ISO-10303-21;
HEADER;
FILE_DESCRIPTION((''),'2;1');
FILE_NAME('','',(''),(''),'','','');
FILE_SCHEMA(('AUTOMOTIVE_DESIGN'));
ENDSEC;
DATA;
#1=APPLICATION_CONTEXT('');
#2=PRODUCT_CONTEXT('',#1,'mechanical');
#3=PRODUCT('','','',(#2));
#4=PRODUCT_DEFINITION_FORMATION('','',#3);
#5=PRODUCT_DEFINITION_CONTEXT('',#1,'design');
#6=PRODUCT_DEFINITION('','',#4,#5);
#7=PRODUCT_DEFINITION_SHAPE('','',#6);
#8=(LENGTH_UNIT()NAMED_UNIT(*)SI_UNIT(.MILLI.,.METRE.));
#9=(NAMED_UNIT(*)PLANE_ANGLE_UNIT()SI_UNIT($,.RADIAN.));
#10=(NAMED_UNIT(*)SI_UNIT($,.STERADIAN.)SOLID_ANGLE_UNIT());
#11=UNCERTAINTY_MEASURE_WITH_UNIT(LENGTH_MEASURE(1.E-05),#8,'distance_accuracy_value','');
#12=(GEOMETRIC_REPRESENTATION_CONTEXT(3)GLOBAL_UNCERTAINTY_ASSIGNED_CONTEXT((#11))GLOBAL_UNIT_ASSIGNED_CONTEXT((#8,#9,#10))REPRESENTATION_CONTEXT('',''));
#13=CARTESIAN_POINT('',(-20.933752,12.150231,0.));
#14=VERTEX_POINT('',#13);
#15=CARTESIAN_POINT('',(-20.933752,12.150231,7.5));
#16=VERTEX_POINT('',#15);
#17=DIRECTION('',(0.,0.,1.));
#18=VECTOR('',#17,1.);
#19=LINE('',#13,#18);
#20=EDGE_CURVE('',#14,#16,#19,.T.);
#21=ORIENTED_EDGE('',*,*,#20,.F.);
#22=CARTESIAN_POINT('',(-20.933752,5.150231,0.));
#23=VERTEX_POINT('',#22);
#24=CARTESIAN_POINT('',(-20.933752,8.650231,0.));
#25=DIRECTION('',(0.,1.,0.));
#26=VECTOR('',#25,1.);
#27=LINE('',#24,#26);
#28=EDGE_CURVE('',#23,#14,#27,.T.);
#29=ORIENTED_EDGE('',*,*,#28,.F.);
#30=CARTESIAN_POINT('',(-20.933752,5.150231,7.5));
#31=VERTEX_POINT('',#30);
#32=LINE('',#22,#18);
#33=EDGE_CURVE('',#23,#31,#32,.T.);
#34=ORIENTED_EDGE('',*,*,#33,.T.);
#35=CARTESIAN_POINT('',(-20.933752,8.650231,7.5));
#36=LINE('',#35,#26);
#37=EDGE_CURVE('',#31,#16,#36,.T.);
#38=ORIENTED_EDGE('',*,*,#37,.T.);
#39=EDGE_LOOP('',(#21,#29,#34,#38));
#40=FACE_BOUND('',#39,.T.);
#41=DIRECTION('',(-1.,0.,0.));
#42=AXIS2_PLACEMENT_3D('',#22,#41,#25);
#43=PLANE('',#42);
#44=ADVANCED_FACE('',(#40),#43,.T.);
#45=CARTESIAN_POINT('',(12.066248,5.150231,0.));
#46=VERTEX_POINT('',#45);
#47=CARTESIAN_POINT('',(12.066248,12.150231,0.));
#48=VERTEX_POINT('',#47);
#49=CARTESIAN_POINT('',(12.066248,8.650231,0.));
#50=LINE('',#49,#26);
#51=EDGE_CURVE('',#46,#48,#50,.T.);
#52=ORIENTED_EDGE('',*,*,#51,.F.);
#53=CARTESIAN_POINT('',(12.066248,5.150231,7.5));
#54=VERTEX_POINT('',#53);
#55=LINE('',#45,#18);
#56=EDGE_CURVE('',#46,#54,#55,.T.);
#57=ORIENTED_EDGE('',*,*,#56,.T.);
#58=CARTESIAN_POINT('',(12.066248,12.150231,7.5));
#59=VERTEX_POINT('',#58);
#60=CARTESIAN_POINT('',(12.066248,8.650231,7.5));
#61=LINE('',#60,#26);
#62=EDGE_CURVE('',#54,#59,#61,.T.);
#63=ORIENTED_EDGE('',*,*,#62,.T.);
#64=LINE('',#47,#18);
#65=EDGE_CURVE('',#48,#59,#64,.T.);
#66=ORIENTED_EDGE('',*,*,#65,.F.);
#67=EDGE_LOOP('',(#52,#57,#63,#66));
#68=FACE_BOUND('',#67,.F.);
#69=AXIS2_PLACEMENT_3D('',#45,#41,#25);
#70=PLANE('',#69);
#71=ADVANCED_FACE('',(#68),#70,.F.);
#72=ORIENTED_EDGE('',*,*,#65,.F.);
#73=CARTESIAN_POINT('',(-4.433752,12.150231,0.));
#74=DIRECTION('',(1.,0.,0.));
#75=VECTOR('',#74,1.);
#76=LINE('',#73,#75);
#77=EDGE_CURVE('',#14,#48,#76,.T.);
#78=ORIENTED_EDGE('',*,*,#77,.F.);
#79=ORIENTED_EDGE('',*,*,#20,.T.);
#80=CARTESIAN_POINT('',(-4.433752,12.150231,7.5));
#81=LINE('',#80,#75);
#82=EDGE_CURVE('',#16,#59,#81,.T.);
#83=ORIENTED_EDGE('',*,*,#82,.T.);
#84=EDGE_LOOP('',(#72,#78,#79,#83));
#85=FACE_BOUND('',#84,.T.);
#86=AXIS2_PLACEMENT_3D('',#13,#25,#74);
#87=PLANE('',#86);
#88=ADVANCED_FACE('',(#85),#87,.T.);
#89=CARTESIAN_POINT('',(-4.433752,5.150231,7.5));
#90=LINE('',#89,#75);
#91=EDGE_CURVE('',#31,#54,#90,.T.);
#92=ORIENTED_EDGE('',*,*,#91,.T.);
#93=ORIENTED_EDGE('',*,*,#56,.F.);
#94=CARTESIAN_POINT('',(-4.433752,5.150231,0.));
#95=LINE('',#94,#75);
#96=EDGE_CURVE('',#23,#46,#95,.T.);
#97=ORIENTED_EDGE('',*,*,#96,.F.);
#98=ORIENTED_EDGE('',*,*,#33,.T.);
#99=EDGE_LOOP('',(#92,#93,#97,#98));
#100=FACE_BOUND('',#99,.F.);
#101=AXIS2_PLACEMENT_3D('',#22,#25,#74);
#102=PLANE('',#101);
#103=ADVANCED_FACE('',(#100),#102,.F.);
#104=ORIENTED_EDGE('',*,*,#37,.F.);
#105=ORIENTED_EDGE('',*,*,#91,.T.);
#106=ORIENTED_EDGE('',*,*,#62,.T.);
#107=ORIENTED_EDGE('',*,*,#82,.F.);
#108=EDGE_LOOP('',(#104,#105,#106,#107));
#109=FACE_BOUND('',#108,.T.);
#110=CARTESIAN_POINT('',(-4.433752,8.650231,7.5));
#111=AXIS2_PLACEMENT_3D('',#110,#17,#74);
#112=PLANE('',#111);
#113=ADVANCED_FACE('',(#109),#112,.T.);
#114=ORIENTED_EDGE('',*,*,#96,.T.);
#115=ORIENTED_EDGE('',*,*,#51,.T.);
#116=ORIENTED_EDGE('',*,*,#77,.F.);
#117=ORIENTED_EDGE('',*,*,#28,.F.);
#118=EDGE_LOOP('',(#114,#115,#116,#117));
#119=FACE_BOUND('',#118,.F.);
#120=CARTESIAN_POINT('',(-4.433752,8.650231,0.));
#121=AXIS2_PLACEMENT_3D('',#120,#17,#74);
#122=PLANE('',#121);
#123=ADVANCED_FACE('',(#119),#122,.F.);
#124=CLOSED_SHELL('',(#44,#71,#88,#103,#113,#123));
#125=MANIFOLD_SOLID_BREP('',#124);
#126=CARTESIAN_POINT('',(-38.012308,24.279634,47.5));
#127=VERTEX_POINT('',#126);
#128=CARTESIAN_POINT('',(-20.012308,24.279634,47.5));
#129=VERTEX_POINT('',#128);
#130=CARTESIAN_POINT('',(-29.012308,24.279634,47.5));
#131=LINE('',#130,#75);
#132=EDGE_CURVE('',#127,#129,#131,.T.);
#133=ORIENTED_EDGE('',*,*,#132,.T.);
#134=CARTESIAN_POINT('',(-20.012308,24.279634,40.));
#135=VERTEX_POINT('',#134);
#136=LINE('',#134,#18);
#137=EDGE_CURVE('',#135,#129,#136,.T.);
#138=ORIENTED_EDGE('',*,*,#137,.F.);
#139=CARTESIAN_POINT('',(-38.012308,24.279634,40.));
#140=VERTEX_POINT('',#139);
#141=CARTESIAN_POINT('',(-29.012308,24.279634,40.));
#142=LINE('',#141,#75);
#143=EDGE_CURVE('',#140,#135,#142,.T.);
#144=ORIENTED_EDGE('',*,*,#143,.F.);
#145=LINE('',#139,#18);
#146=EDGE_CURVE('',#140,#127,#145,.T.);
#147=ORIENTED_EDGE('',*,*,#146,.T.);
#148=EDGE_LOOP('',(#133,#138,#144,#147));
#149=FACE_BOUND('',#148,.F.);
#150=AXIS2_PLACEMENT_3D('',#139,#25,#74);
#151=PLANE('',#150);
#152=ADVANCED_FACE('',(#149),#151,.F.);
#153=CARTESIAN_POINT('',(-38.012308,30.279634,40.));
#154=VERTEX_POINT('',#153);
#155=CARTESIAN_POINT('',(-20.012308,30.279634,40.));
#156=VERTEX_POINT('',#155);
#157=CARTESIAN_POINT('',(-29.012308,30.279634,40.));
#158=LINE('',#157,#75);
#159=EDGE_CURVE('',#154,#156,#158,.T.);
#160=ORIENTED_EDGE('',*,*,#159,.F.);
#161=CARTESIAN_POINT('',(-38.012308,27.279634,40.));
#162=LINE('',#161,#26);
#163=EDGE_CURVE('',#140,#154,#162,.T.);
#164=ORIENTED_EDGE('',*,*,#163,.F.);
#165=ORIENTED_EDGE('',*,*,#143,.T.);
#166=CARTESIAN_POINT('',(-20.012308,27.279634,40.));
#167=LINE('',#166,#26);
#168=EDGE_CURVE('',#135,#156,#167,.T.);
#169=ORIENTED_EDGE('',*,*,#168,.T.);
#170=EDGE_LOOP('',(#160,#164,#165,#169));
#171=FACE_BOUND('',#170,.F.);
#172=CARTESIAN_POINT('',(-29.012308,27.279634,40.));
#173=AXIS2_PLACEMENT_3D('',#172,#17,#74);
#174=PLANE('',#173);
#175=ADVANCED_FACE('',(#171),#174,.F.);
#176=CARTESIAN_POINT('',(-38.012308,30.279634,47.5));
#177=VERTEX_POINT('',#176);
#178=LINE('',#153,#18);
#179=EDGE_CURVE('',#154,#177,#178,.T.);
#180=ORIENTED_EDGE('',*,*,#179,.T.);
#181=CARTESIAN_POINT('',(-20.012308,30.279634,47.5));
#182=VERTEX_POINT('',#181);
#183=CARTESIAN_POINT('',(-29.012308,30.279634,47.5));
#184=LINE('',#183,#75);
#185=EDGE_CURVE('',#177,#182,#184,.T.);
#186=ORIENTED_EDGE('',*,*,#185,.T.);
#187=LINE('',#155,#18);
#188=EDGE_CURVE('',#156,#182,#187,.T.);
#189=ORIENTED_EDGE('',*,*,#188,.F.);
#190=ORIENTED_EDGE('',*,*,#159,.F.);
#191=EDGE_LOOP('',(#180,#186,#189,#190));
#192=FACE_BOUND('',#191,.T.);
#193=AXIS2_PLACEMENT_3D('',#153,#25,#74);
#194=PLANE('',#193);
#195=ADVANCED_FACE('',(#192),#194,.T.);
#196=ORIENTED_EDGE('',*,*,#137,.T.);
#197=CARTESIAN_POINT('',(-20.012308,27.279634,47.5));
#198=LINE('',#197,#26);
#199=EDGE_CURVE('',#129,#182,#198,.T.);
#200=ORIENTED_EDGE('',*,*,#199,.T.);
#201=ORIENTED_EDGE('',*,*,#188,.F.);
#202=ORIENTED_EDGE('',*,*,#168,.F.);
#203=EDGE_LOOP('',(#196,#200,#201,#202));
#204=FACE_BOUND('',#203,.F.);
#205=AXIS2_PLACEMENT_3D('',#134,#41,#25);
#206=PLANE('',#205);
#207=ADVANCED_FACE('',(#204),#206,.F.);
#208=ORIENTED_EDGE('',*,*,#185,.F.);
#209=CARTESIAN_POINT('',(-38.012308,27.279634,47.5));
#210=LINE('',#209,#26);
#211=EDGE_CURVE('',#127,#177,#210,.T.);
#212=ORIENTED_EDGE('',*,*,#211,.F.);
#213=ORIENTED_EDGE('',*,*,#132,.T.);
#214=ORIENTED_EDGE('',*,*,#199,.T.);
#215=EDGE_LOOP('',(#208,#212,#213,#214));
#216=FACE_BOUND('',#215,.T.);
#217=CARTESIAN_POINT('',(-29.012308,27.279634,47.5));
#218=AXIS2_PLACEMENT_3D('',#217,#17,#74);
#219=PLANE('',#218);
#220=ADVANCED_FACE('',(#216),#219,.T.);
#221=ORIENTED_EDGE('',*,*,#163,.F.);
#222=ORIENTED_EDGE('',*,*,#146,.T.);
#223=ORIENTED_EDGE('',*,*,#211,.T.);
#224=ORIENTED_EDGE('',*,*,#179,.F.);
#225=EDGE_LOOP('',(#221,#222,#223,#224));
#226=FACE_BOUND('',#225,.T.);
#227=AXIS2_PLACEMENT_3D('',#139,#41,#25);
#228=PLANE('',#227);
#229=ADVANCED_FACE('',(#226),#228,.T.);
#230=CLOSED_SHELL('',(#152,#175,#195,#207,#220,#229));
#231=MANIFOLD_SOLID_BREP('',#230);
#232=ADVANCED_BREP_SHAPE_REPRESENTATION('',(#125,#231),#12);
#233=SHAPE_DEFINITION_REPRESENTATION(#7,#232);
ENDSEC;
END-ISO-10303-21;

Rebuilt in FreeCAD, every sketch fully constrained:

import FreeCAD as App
import Part
import Sketcher
from FreeCAD import Vector

doc = App.newDocument("Part")
body = doc.addObject("PartDesign::Body", "Body")

# Sketch on XY plane
sketch1 = doc.addObject("Sketcher::SketchObject", "Sketch")
body.addObject(sketch1)
sketch1.AttachmentSupport = (doc.XY_Plane, [""])
sketch1.MapMode = "FlatFace"
sketch1.addGeometry(Part.LineSegment(Vector(-21, 12, 0), Vector(-21, 5, 0)), False)
sketch1.addGeometry(Part.LineSegment(Vector(-21, 5, 0), Vector(12, 5, 0)), False)
sketch1.addGeometry(Part.LineSegment(Vector(12, 5, 0), Vector(12, 12, 0)), False)
sketch1.addGeometry(Part.LineSegment(Vector(12, 12, 0), Vector(-21, 12, 0)), False)
sketch1.addConstraint(Sketcher.Constraint("Coincident", 0, 2, 1, 1))
sketch1.addConstraint(Sketcher.Constraint("Coincident", 1, 2, 2, 1))
sketch1.addConstraint(Sketcher.Constraint("Coincident", 2, 2, 3, 1))
sketch1.addConstraint(Sketcher.Constraint("Coincident", 3, 2, 0, 1))
sketch1.addConstraint(Sketcher.Constraint("Vertical", 0))
sketch1.addConstraint(Sketcher.Constraint("Horizontal", 1))
sketch1.addConstraint(Sketcher.Constraint("Vertical", 2))
sketch1.addConstraint(Sketcher.Constraint("Horizontal", 3))
sketch1.addConstraint(Sketcher.Constraint("DistanceX", 1, 1, 1, 2, 33.0))
sketch1.addConstraint(Sketcher.Constraint("DistanceY", 0, 2, 0, 1, 7.0))
sketch1.addConstraint(Sketcher.Constraint("DistanceX", 0, 2, -1, 1, 20.933752))
sketch1.addConstraint(Sketcher.Constraint("DistanceY", -1, 1, 0, 2, 5.150231))
pad1 = doc.addObject("PartDesign::Pad", "Pad")
body.addObject(pad1)
pad1.Profile = sketch1
pad1.Length = 7.5
body2 = doc.addObject("PartDesign::Body", "Body001")

# Sketch on XY plane
sketch2 = doc.addObject("Sketcher::SketchObject", "Sketch001")
body2.addObject(sketch2)
sketch2.AttachmentSupport = (doc.getObject("XY_Plane001"), [""])
sketch2.MapMode = "FlatFace"
sketch2.AttachmentOffset = App.Placement(Vector(0, 0, 40), App.Rotation())
sketch2.addGeometry(Part.LineSegment(Vector(-38, 30, 0), Vector(-38, 24, 0)), False)
sketch2.addGeometry(Part.LineSegment(Vector(-38, 24, 0), Vector(-20, 24, 0)), False)
sketch2.addGeometry(Part.LineSegment(Vector(-20, 24, 0), Vector(-20, 30, 0)), False)
sketch2.addGeometry(Part.LineSegment(Vector(-20, 30, 0), Vector(-38, 30, 0)), False)
sketch2.addConstraint(Sketcher.Constraint("Coincident", 0, 2, 1, 1))
sketch2.addConstraint(Sketcher.Constraint("Coincident", 1, 2, 2, 1))
sketch2.addConstraint(Sketcher.Constraint("Coincident", 2, 2, 3, 1))
sketch2.addConstraint(Sketcher.Constraint("Coincident", 3, 2, 0, 1))
sketch2.addConstraint(Sketcher.Constraint("Vertical", 0))
sketch2.addConstraint(Sketcher.Constraint("Horizontal", 1))
sketch2.addConstraint(Sketcher.Constraint("Vertical", 2))
sketch2.addConstraint(Sketcher.Constraint("Horizontal", 3))
sketch2.addConstraint(Sketcher.Constraint("DistanceX", 1, 1, 1, 2, 18.0))
sketch2.addConstraint(Sketcher.Constraint("DistanceY", 0, 2, 0, 1, 6.0))
sketch2.addConstraint(Sketcher.Constraint("DistanceX", 1, 2, -1, 1, 20.012308))
sketch2.addConstraint(Sketcher.Constraint("DistanceY", -1, 1, 0, 2, 24.279634))
pad2 = doc.addObject("PartDesign::Pad", "Pad001")
body2.addObject(pad2)
pad2.Profile = sketch2
pad2.Length = 7.5

doc.recompute()
